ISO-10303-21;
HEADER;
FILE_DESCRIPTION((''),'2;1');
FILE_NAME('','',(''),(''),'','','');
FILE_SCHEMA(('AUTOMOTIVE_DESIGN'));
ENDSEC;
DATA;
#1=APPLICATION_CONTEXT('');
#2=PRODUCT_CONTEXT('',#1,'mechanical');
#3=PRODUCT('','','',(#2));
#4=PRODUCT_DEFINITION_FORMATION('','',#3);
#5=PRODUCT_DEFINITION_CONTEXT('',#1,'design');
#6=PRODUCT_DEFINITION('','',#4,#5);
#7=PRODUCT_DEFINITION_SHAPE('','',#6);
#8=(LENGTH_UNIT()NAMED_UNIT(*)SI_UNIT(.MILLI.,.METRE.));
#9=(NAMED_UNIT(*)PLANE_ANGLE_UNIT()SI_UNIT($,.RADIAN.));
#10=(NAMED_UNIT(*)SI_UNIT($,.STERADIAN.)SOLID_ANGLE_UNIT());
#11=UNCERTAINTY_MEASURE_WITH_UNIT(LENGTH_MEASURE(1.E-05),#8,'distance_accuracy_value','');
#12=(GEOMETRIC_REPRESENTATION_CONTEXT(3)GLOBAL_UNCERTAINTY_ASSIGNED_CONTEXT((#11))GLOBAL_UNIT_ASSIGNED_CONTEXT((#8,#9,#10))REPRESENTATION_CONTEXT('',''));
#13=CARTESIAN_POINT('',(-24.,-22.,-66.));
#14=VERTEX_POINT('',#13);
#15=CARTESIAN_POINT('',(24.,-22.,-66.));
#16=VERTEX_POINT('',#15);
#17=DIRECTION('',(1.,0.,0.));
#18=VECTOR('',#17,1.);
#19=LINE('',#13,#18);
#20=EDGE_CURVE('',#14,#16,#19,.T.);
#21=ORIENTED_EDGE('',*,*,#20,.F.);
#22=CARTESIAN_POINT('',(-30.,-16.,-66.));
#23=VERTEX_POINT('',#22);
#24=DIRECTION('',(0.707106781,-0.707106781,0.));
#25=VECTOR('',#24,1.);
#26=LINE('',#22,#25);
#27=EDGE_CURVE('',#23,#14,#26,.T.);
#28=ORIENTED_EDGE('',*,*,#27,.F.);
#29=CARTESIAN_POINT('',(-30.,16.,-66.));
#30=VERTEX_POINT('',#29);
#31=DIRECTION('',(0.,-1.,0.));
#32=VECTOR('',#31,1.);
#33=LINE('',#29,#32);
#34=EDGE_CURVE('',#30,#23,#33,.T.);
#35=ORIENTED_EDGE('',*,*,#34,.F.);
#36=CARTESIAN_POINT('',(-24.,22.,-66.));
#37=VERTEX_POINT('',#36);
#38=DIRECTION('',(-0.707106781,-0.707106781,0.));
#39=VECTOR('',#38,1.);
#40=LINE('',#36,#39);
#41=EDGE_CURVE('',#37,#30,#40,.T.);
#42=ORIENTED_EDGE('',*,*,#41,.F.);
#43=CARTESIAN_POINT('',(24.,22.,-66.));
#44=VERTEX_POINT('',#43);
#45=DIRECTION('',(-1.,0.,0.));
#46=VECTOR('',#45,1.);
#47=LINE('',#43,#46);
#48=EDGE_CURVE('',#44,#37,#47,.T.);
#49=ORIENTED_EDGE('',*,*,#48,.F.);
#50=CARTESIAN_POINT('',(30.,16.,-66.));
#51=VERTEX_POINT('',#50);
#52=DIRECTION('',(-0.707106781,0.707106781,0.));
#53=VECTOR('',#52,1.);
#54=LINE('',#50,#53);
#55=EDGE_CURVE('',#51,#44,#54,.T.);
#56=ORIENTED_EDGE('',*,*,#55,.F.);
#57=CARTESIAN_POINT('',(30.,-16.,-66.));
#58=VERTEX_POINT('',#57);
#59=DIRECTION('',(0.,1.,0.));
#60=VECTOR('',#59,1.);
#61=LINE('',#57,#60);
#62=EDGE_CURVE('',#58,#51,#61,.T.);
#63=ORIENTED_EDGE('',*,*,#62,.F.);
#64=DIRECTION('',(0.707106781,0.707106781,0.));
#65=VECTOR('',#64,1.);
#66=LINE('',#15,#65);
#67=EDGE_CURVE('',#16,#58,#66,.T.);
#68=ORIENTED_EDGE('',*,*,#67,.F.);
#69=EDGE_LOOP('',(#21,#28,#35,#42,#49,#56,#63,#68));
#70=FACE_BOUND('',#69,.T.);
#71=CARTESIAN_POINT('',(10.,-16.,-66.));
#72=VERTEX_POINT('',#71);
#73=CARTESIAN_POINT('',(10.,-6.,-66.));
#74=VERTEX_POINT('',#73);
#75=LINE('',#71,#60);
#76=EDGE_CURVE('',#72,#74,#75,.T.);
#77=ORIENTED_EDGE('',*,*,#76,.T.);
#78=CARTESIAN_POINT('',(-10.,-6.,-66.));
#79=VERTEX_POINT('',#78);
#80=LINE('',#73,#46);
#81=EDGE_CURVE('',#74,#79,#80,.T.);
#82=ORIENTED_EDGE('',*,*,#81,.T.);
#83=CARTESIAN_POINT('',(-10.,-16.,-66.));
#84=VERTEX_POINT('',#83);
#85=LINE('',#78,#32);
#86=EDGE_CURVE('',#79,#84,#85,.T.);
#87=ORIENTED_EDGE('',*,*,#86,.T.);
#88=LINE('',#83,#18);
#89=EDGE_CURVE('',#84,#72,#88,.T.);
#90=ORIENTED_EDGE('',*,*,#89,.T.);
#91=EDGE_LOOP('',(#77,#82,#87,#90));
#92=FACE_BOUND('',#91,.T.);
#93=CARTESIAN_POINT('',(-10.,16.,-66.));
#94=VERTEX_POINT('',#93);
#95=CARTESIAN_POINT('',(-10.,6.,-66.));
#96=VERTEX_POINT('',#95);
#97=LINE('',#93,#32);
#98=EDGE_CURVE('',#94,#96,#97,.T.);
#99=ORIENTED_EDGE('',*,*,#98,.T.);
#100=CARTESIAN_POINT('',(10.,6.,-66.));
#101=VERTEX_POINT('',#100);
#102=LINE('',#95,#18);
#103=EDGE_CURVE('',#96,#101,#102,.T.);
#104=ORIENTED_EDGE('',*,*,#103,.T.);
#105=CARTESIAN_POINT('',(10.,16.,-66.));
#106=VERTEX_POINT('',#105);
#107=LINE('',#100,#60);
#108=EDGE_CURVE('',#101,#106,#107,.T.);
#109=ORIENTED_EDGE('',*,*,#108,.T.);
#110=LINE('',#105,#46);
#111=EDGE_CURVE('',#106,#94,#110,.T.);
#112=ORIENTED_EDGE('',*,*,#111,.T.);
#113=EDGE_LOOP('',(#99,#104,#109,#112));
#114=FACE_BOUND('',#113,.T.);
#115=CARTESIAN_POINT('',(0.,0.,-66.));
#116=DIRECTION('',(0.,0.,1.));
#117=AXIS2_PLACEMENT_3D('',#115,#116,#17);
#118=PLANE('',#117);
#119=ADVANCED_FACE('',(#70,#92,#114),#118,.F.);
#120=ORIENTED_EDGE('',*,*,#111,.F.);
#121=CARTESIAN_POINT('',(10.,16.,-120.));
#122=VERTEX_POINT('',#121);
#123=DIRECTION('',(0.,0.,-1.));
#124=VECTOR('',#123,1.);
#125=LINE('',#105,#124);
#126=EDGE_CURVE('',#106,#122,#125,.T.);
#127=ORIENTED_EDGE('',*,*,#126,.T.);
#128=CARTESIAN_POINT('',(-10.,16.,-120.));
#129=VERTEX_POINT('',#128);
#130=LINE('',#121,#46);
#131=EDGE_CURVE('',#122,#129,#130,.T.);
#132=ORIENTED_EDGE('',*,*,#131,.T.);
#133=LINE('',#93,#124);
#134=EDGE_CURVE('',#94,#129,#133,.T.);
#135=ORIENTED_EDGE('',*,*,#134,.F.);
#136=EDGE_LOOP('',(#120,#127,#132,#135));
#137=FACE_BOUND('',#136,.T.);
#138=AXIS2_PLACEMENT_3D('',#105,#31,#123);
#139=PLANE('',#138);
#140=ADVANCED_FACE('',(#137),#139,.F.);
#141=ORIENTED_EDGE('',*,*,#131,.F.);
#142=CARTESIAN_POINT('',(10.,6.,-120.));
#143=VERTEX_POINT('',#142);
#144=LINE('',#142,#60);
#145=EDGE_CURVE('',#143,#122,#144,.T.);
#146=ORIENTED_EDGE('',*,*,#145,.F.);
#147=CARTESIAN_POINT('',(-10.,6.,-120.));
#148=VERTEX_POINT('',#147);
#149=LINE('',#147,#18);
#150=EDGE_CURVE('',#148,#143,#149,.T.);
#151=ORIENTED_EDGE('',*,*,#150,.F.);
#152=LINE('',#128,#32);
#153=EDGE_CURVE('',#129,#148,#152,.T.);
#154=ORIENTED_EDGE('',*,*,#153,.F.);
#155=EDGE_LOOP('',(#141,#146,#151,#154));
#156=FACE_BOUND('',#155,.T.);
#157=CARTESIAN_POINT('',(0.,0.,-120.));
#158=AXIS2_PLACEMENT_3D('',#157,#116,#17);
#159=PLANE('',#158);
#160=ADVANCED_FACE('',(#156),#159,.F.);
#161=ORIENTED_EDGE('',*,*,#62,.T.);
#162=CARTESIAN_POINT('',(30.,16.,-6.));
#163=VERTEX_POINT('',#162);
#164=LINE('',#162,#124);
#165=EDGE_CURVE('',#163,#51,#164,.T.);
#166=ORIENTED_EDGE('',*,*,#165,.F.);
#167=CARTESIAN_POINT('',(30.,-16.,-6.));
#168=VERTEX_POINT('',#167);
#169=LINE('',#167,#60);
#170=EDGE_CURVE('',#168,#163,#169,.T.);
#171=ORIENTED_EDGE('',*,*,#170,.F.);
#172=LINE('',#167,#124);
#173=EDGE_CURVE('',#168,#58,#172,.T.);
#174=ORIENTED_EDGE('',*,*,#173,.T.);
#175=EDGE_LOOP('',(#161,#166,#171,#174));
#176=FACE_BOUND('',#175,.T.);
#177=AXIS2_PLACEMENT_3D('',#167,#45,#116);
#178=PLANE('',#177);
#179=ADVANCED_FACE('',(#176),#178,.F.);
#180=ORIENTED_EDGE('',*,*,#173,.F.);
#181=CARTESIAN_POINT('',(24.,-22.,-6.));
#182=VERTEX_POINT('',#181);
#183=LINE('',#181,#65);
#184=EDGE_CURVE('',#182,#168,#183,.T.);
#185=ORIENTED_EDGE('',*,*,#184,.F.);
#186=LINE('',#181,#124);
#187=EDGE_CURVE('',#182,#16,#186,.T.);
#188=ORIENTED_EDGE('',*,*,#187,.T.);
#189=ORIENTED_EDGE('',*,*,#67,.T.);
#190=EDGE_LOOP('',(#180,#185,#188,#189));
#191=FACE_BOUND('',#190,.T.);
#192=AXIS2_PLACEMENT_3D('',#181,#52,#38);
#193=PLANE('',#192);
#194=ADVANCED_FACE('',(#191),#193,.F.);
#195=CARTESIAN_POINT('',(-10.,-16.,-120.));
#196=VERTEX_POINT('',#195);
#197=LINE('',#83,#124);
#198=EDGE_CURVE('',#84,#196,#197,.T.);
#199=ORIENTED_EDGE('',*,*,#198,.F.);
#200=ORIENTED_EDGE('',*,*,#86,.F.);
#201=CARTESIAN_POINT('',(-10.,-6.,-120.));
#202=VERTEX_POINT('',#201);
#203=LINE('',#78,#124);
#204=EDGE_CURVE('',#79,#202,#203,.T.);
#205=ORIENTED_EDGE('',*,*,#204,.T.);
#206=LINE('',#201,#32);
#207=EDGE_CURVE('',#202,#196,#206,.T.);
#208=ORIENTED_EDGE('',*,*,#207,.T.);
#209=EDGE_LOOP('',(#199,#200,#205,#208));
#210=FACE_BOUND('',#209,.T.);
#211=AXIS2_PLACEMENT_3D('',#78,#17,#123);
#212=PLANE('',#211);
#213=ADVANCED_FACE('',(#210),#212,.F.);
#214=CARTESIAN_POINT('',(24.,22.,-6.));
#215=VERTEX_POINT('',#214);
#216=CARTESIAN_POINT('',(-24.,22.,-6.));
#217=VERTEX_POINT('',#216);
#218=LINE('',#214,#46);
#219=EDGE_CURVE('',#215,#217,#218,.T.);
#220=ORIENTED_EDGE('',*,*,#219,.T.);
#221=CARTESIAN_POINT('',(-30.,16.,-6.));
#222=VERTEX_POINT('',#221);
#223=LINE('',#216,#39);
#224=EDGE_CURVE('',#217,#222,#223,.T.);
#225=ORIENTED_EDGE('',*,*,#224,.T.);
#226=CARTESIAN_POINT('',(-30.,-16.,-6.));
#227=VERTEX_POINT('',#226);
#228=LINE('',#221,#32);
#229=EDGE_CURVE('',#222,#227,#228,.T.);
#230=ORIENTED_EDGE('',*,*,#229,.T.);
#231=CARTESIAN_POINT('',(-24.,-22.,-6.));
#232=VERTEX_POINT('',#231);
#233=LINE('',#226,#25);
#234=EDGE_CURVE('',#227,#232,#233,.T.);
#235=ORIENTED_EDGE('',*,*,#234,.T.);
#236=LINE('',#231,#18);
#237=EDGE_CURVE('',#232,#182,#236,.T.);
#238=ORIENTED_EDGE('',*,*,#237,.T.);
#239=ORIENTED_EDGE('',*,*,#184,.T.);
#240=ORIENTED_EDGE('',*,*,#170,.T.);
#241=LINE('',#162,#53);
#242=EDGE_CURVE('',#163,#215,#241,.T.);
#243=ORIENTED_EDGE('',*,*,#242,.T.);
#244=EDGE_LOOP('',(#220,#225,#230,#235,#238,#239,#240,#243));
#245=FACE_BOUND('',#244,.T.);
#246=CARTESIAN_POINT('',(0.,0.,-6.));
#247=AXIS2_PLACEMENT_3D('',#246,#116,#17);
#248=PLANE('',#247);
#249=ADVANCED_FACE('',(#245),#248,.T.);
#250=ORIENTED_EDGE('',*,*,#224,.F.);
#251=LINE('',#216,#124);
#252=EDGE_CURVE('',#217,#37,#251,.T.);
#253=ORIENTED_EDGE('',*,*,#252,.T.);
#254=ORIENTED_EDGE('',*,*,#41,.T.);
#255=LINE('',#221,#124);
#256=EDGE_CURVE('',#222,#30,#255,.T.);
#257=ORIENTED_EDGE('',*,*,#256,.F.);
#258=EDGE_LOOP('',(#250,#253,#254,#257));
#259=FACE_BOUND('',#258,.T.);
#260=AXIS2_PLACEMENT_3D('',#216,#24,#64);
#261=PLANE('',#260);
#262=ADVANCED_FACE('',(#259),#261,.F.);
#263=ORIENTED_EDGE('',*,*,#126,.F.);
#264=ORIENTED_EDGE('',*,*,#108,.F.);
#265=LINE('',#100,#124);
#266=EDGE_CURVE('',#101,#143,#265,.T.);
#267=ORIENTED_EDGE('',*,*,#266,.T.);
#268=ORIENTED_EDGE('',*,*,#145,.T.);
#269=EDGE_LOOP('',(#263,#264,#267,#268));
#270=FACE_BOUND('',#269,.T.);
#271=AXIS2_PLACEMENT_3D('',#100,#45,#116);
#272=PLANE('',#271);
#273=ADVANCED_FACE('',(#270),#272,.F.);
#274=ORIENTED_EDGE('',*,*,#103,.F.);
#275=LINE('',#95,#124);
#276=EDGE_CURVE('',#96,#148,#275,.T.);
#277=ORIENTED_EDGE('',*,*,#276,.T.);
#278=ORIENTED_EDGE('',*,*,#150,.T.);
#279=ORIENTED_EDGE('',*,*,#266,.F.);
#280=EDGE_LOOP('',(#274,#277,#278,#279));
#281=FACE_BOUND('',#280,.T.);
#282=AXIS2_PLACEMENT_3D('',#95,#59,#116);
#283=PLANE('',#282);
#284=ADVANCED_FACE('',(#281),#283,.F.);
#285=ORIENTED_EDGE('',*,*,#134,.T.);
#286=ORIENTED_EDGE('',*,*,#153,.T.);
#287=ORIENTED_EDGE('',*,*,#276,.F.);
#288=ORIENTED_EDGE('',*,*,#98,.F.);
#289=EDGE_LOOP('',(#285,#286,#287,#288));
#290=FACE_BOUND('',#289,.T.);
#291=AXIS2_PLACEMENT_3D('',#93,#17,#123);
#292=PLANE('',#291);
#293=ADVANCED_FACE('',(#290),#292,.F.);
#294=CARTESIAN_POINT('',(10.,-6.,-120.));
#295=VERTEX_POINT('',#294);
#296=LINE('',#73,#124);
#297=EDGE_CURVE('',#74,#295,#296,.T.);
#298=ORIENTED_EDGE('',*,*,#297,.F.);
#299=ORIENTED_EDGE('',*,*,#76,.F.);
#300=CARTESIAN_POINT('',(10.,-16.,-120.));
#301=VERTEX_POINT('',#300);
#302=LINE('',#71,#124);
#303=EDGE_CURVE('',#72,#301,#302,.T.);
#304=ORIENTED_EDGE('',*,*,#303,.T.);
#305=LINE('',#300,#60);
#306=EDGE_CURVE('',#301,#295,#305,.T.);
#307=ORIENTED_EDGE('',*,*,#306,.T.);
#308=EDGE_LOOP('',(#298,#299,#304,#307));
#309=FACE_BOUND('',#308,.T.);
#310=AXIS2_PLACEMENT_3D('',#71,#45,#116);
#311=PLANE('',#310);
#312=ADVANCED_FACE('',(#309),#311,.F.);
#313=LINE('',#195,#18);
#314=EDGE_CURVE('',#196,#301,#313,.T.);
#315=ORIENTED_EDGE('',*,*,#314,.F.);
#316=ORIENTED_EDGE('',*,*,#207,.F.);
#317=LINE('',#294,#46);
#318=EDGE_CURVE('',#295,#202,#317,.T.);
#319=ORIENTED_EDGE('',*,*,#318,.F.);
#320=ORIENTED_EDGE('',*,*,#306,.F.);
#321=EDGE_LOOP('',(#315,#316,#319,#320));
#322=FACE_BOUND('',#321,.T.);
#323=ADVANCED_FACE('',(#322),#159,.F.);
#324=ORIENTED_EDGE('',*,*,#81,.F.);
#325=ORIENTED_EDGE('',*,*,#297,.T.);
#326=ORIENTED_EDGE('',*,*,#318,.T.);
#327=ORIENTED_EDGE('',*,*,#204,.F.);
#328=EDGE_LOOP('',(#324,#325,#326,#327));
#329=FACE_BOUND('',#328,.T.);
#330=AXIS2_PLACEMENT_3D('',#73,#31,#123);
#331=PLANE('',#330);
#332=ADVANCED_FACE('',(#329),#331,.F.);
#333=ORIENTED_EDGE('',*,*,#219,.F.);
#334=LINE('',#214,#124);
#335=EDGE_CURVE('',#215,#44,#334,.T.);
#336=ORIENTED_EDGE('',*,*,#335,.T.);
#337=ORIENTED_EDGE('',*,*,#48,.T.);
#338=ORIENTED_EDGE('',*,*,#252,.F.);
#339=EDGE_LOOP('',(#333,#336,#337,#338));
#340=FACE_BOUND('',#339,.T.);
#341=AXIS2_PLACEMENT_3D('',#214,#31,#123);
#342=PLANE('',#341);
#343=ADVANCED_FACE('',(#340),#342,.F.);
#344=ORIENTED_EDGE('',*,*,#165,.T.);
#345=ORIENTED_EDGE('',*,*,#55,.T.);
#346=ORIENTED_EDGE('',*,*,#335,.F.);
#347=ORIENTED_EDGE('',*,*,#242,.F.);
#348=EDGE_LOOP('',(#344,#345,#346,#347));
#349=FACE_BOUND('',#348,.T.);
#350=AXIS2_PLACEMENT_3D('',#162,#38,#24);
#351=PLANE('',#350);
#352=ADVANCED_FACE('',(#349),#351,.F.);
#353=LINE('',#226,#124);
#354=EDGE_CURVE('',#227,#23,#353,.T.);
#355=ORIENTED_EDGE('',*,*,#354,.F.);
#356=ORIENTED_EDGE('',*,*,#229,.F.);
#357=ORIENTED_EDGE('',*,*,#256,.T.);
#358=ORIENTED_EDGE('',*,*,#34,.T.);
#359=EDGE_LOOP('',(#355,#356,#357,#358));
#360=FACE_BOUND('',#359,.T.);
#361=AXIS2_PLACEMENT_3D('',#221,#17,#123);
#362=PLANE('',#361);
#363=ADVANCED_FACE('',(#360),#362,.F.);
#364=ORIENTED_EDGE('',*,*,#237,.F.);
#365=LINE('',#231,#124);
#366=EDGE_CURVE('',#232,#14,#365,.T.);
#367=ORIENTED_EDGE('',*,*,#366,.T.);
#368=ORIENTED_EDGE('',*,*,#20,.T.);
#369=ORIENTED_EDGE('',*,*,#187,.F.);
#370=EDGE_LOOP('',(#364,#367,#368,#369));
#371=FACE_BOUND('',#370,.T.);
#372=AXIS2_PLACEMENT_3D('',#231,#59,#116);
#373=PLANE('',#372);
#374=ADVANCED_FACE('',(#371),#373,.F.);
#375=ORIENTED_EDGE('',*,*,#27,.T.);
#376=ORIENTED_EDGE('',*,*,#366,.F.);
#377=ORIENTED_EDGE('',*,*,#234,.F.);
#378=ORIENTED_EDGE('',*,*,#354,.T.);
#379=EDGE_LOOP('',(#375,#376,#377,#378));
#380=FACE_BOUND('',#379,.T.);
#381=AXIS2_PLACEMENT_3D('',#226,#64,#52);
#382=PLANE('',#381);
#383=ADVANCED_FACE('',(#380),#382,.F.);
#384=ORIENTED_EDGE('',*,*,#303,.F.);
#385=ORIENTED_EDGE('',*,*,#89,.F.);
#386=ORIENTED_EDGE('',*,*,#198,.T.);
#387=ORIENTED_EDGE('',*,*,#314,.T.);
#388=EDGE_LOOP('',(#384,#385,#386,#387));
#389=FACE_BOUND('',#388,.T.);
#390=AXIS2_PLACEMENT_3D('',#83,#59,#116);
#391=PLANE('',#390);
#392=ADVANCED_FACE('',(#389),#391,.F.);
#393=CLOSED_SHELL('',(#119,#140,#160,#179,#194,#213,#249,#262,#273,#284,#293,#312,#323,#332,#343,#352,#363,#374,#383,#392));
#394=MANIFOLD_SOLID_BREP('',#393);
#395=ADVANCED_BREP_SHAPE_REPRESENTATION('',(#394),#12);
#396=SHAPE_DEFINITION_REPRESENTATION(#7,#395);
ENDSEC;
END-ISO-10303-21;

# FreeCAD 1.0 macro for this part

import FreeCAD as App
import Part
import Sketcher
from FreeCAD import Vector


def add_polygon(sketch, points):
    """Adds a closed chain of lines whose ends are joined by coincident constraints."""
    first, n = sketch.GeometryCount, len(points)
    for a, b in zip(points, points[1:] + points[:1]):
        sketch.addGeometry(Part.LineSegment(App.Vector(*a, 0), App.Vector(*b, 0)), False)
    for i in range(n):
        sketch.addConstraint(Sketcher.Constraint("Coincident", first + i, 2, first + (i + 1) % n, 1))

doc = App.newDocument("Part")
params = doc.addObject("Spreadsheet::Sheet", "Params")
for row, (alias, value) in enumerate([
    ("sketch1_width", "48 mm"),
    ("sketch1_height", "32 mm"),
    ("pad1_length", "60 mm"),
    ("sketch2_width", "20 mm"),
    ("sketch2_height", "10 mm"),
    ("pad2_length", "54 mm"),
    ("sketch3_width", "20 mm"),
    ("sketch3_height", "10 mm"),
    ("pad3_length", "54 mm"),
], start=1):
    params.set(f"A{row}", alias)
    params.set(f"B{row}", "=" + value)
    params.setAlias(f"B{row}", alias)

body = doc.addObject("PartDesign::Body", "Body")

# Sketch on XY plane
sketch1 = body.newObject("Sketcher::SketchObject", "Sketch")
sketch1.AttachmentSupport = (doc.getObject("XY_Plane"), [""])
sketch1.MapMode = "FlatFace"
sketch1.AttachmentOffset = App.Placement(Vector(0, 0, -66), App.Rotation())
add_polygon(sketch1, [(-24, -22), (24, -22), (30, -16), (30, 16), (24, 22), (-24, 22), (-30, 16), (-30, -16)])  # lines 0-7
sketch1.addConstraint([
    Sketcher.Constraint("Horizontal", 0),
    Sketcher.Constraint("Vertical", 2),
    Sketcher.Constraint("Horizontal", 4),
    Sketcher.Constraint("Vertical", 6),
    Sketcher.Constraint("Symmetric", 0, 2, 4, 2, -1, 1),
    Sketcher.Constraint("Symmetric", 1, 2, 5, 2, -1, 1),
    Sketcher.Constraint("Perpendicular", 1, 3),
    Sketcher.Constraint("Perpendicular", 5, 7),
    Sketcher.Constraint("Horizontal", 2, 2, 5, 2),
    Sketcher.Constraint("Horizontal", 1, 2, 6, 2),
    Sketcher.Constraint("Vertical", 0, 2, 3, 2),
    Sketcher.Constraint("DistanceX", 0, 1, 0, 2, 48.0),
    Sketcher.Constraint("DistanceY", 2, 1, 2, 2, 32.0),
    Sketcher.Constraint("DistanceY", 0, 2, -1, 1, 22.0),
])
sketch1.setExpression("Constraints[19]", "Params.sketch1_width")
sketch1.setExpression("Constraints[20]", "Params.sketch1_height")
pad1 = body.newObject("PartDesign::Pad", "Pad")
pad1.Profile = sketch1
pad1.setExpression("Length", "Params.pad1_length")

# Sketch on XY plane
sketch2 = body.newObject("Sketcher::SketchObject", "Sketch001")
sketch2.AttachmentSupport = (doc.getObject("XY_Plane"), [""])
sketch2.MapMode = "FlatFace"
sketch2.AttachmentOffset = App.Placement(Vector(0, 0, -120), App.Rotation())
add_polygon(sketch2, [(-10, 16), (-10, 6), (10, 6), (10, 16)])  # lines 0-3
sketch2.addConstraint([
    Sketcher.Constraint("Vertical", 0),
    Sketcher.Constraint("Horizontal", 1),
    Sketcher.Constraint("Vertical", 2),
    Sketcher.Constraint("Horizontal", 3),
    Sketcher.Constraint("DistanceX", 1, 1, 1, 2, 20.0),
    Sketcher.Constraint("DistanceY", 0, 2, 0, 1, 10.0),
    Sketcher.Constraint("DistanceX", 0, 2, -1, 1, 10.0),
    Sketcher.Constraint("DistanceY", -1, 1, 0, 2, 6.0),
])
sketch2.setExpression("Constraints[8]", "Params.sketch2_width")
sketch2.setExpression("Constraints[9]", "Params.sketch2_height")
pad2 = body.newObject("PartDesign::Pad", "Pad001")
pad2.Profile = sketch2
pad2.setExpression("Length", "Params.pad2_length")

# Sketch on XY plane
sketch3 = body.newObject("Sketcher::SketchObject", "Sketch002")
sketch3.AttachmentSupport = (doc.getObject("XY_Plane"), [""])
sketch3.MapMode = "FlatFace"
sketch3.AttachmentOffset = App.Placement(Vector(0, 0, -120), App.Rotation())
add_polygon(sketch3, [(-10, -6), (-10, -16), (10, -16), (10, -6)])  # lines 0-3
sketch3.addConstraint([
    Sketcher.Constraint("Vertical", 0),
    Sketcher.Constraint("Horizontal", 1),
    Sketcher.Constraint("Vertical", 2),
    Sketcher.Constraint("Horizontal", 3),
    Sketcher.Constraint("DistanceX", 1, 1, 1, 2, 20.0),
    Sketcher.Constraint("DistanceY", 0, 2, 0, 1, 10.0),
    Sketcher.Constraint("DistanceX", 0, 2, -1, 1, 10.0),
    Sketcher.Constraint("DistanceY", 0, 2, -1, 1, 16.0),
])
sketch3.setExpression("Constraints[8]", "Params.sketch3_width")
sketch3.setExpression("Constraints[9]", "Params.sketch3_height")
pad3 = body.newObject("PartDesign::Pad", "Pad002")
pad3.Profile = sketch3
pad3.setExpression("Length", "Params.pad3_length")

doc.recompute()
